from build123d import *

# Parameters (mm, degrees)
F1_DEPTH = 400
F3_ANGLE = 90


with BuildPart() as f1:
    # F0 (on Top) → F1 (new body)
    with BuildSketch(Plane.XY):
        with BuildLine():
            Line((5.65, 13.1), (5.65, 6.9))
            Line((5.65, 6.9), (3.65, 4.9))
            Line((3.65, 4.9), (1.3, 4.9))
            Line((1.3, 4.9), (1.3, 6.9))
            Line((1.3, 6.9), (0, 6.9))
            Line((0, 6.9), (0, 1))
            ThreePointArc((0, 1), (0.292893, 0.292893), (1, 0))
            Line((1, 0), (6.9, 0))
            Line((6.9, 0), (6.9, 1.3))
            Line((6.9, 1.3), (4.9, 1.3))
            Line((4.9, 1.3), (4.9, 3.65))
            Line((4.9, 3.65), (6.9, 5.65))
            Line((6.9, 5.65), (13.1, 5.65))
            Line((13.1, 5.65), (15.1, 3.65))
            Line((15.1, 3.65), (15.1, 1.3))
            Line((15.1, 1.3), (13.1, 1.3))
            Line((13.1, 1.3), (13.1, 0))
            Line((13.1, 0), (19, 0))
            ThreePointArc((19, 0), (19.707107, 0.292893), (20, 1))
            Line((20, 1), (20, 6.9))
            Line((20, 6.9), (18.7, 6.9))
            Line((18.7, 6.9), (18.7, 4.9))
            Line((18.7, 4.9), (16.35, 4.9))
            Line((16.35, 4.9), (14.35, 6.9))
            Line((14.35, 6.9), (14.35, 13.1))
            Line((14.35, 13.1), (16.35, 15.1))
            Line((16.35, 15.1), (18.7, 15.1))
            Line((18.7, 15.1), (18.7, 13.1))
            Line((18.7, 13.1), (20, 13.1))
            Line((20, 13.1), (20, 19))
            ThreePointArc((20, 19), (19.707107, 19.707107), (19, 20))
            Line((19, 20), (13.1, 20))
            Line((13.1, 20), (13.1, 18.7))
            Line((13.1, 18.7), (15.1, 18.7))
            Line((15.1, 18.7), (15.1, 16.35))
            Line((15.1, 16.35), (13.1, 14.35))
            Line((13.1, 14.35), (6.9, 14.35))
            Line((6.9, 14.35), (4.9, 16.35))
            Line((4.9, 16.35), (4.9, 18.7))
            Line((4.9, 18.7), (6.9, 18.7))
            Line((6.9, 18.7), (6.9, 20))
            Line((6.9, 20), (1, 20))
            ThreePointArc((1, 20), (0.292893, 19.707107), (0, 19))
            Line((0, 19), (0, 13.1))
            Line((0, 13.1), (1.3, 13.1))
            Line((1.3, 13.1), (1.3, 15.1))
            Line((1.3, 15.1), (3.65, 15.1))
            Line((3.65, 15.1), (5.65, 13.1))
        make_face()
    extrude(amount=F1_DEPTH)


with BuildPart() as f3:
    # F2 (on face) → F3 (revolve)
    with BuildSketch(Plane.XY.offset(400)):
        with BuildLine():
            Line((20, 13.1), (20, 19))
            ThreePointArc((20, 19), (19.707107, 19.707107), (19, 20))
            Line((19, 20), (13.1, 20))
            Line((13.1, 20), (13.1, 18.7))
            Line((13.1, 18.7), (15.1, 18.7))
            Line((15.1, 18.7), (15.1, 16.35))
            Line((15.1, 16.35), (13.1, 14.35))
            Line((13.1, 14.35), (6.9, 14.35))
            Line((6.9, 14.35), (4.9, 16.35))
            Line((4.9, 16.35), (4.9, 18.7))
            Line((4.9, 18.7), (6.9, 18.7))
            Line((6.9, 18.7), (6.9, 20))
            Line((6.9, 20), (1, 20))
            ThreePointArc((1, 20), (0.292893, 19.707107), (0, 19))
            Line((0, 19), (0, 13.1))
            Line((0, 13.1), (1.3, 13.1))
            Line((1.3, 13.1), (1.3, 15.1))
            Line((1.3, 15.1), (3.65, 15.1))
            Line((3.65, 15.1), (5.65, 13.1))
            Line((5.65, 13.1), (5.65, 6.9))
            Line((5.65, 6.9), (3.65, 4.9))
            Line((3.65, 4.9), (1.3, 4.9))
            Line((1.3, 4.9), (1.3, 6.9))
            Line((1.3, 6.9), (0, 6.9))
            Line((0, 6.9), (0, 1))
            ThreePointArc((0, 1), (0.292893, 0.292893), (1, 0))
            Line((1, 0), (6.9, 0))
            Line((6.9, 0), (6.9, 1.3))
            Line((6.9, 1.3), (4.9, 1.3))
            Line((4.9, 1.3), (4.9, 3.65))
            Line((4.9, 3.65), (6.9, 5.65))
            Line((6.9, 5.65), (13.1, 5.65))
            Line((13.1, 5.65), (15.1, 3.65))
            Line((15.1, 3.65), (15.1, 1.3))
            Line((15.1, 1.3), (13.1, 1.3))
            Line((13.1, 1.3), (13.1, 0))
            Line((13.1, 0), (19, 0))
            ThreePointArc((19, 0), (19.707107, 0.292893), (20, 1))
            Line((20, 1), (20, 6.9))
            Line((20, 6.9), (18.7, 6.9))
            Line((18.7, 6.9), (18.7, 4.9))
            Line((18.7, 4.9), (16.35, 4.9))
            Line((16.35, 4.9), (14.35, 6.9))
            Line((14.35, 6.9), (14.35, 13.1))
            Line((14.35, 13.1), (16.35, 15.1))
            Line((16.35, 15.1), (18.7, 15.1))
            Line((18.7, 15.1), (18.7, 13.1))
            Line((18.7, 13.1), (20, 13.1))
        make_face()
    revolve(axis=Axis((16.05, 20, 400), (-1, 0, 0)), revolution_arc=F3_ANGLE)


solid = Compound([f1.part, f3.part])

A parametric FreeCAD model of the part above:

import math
import FreeCAD as App
import Part
import Sketcher

V = App.Vector

doc = App.newDocument("Part")
body = doc.addObject("PartDesign::Body", "Body")

# Sketch on XY plane
sketch1 = body.newObject("Sketcher::SketchObject", "Sketch")
sketch1.AttachmentSupport = (doc.getObject("XY_Plane"), [""])
sketch1.MapMode = "FlatFace"
sketch1.addGeometry([
    Part.LineSegment(V(5.7, 13.1, 0), V(5.7, 6.9, 0)),  # 0
    Part.LineSegment(V(5.7, 6.9, 0), V(3.6, 4.9, 0)),  # 1
    Part.LineSegment(V(3.6, 4.9, 0), V(1.3, 4.9, 0)),  # 2
    Part.LineSegment(V(1.3, 4.9, 0), V(1.3, 6.9, 0)),  # 3
    Part.LineSegment(V(1.3, 6.9, 0), V(0, 6.9, 0)),  # 4
    Part.LineSegment(V(0, 6.9, 0), V(0, 1, 0)),  # 5
    Part.ArcOfCircle(Part.Circle(V(1, 1, 0), V(0, 0, 1), 1), math.radians(180), math.radians(270)),  # 6
    Part.LineSegment(V(1, 0, 0), V(6.9, 0, 0)),  # 7
    Part.LineSegment(V(6.9, 0, 0), V(6.9, 1.3, 0)),  # 8
    Part.LineSegment(V(6.9, 1.3, 0), V(4.9, 1.3, 0)),  # 9
    Part.LineSegment(V(4.9, 1.3, 0), V(4.9, 3.6, 0)),  # 10
    Part.LineSegment(V(4.9, 3.6, 0), V(6.9, 5.7, 0)),  # 11
    Part.LineSegment(V(6.9, 5.7, 0), V(13.1, 5.7, 0)),  # 12
    Part.LineSegment(V(13.1, 5.7, 0), V(15.1, 3.6, 0)),  # 13
    Part.LineSegment(V(15.1, 3.6, 0), V(15.1, 1.3, 0)),  # 14
    Part.LineSegment(V(15.1, 1.3, 0), V(13.1, 1.3, 0)),  # 15
    Part.LineSegment(V(13.1, 1.3, 0), V(13.1, 0, 0)),  # 16
    Part.LineSegment(V(13.1, 0, 0), V(19, 0, 0)),  # 17
    Part.ArcOfCircle(Part.Circle(V(19, 1, 0), V(0, 0, 1), 1), math.radians(-90), math.radians(0)),  # 18
    Part.LineSegment(V(20, 1, 0), V(20, 6.9, 0)),  # 19
    Part.LineSegment(V(20, 6.9, 0), V(18.7, 6.9, 0)),  # 20
    Part.LineSegment(V(18.7, 6.9, 0), V(18.7, 4.9, 0)),  # 21
    Part.LineSegment(V(18.7, 4.9, 0), V(16.4, 4.9, 0)),  # 22
    Part.LineSegment(V(16.4, 4.9, 0), V(14.3, 6.9, 0)),  # 23
    Part.LineSegment(V(14.3, 6.9, 0), V(14.3, 13.1, 0)),  # 24
    Part.LineSegment(V(14.3, 13.1, 0), V(16.4, 15.1, 0)),  # 25
    Part.LineSegment(V(16.4, 15.1, 0), V(18.7, 15.1, 0)),  # 26
    Part.LineSegment(V(18.7, 15.1, 0), V(18.7, 13.1, 0)),  # 27
    Part.LineSegment(V(18.7, 13.1, 0), V(20, 13.1, 0)),  # 28
    Part.LineSegment(V(20, 13.1, 0), V(20, 19, 0)),  # 29
    Part.ArcOfCircle(Part.Circle(V(19, 19, 0), V(0, 0, 1), 1), math.radians(0), math.radians(90)),  # 30
    Part.LineSegment(V(19, 20, 0), V(13.1, 20, 0)),  # 31
    Part.LineSegment(V(13.1, 20, 0), V(13.1, 18.7, 0)),  # 32
    Part.LineSegment(V(13.1, 18.7, 0), V(15.1, 18.7, 0)),  # 33
    Part.LineSegment(V(15.1, 18.7, 0), V(15.1, 16.4, 0)),  # 34
    Part.LineSegment(V(15.1, 16.4, 0), V(13.1, 14.3, 0)),  # 35
    Part.LineSegment(V(13.1, 14.3, 0), V(6.9, 14.3, 0)),  # 36
    Part.LineSegment(V(6.9, 14.3, 0), V(4.9, 16.4, 0)),  # 37
    Part.LineSegment(V(4.9, 16.4, 0), V(4.9, 18.7, 0)),  # 38
    Part.LineSegment(V(4.9, 18.7, 0), V(6.9, 18.7, 0)),  # 39
    Part.LineSegment(V(6.9, 18.7, 0), V(6.9, 20, 0)),  # 40
    Part.LineSegment(V(6.9, 20, 0), V(1, 20, 0)),  # 41
    Part.ArcOfCircle(Part.Circle(V(1, 19, 0), V(0, 0, 1), 1), math.radians(90), math.radians(180)),  # 42
    Part.LineSegment(V(0, 19, 0), V(0, 13.1, 0)),  # 43
    Part.LineSegment(V(0, 13.1, 0), V(1.3, 13.1, 0)),  # 44
    Part.LineSegment(V(1.3, 13.1, 0), V(1.3, 15.1, 0)),  # 45
    Part.LineSegment(V(1.3, 15.1, 0), V(3.6, 15.1, 0)),  # 46
    Part.LineSegment(V(3.6, 15.1, 0), V(5.7, 13.1, 0)),  # 47
], False)
sketch1.addConstraint([
    Sketcher.Constraint("Coincident", 0, 2, 1, 1),
    Sketcher.Constraint("Coincident", 1, 2, 2, 1),
    Sketcher.Constraint("Coincident", 2, 2, 3, 1),
    Sketcher.Constraint("Coincident", 3, 2, 4, 1),
    Sketcher.Constraint("Coincident", 4, 2, 5, 1),
    Sketcher.Constraint("Tangent", 5, 2, 6, 1),
    Sketcher.Constraint("Tangent", 6, 2, 7, 1),
    Sketcher.Constraint("Coincident", 7, 2, 8, 1),
    Sketcher.Constraint("Coincident", 8, 2, 9, 1),
    Sketcher.Constraint("Coincident", 9, 2, 10, 1),
    Sketcher.Constraint("Coincident", 10, 2, 11, 1),
    Sketcher.Constraint("Coincident", 11, 2, 12, 1),
    Sketcher.Constraint("Coincident", 12, 2, 13, 1),
    Sketcher.Constraint("Coincident", 13, 2, 14, 1),
    Sketcher.Constraint("Coincident", 14, 2, 15, 1),
    Sketcher.Constraint("Coincident", 15, 2, 16, 1),
    Sketcher.Constraint("Coincident", 16, 2, 17, 1),
    Sketcher.Constraint("Tangent", 17, 2, 18, 1),
    Sketcher.Constraint("Tangent", 18, 2, 19, 1),
    Sketcher.Constraint("Coincident", 19, 2, 20, 1),
    Sketcher.Constraint("Coincident", 20, 2, 21, 1),
    Sketcher.Constraint("Coincident", 21, 2, 22, 1),
    Sketcher.Constraint("Coincident", 22, 2, 23, 1),
    Sketcher.Constraint("Coincident", 23, 2, 24, 1),
    Sketcher.Constraint("Coincident", 24, 2, 25, 1),
    Sketcher.Constraint("Coincident", 25, 2, 26, 1),
    Sketcher.Constraint("Coincident", 26, 2, 27, 1),
    Sketcher.Constraint("Coincident", 27, 2, 28, 1),
    Sketcher.Constraint("Coincident", 28, 2, 29, 1),
    Sketcher.Constraint("Tangent", 29, 2, 30, 1),
    Sketcher.Constraint("Tangent", 30, 2, 31, 1),
    Sketcher.Constraint("Coincident", 31, 2, 32, 1),
    Sketcher.Constraint("Coincident", 32, 2, 33, 1),
    Sketcher.Constraint("Coincident", 33, 2, 34, 1),
    Sketcher.Constraint("Coincident", 34, 2, 35, 1),
    Sketcher.Constraint("Coincident", 35, 2, 36, 1),
    Sketcher.Constraint("Coincident", 36, 2, 37, 1),
    Sketcher.Constraint("Coincident", 37, 2, 38, 1),
    Sketcher.Constraint("Coincident", 38, 2, 39, 1),
    Sketcher.Constraint("Coincident", 39, 2, 40, 1),
    Sketcher.Constraint("Coincident", 40, 2, 41, 1),
    Sketcher.Constraint("Tangent", 41, 2, 42, 1),
    Sketcher.Constraint("Tangent", 42, 2, 43, 1),
    Sketcher.Constraint("Coincident", 43, 2, 44, 1),
    Sketcher.Constraint("Coincident", 44, 2, 45, 1),
    Sketcher.Constraint("Coincident", 45, 2, 46, 1),
    Sketcher.Constraint("Coincident", 46, 2, 47, 1),
    Sketcher.Constraint("Coincident", 47, 2, 0, 1),
    Sketcher.Constraint("Vertical", 0),
    Sketcher.Constraint("Horizontal", 2),
    Sketcher.Constraint("Vertical", 3),
    Sketcher.Constraint("Horizontal", 4),
    Sketcher.Constraint("Vertical", 5),
    Sketcher.Constraint("Horizontal", 7),
    Sketcher.Constraint("Vertical", 8),
    Sketcher.Constraint("Horizontal", 9),
    Sketcher.Constraint("Vertical", 10),
    Sketcher.Constraint("Horizontal", 12),
    Sketcher.Constraint("Vertical", 14),
    Sketcher.Constraint("Horizontal", 15),
    Sketcher.Constraint("Vertical", 16),
    Sketcher.Constraint("Horizontal", 17),
    Sketcher.Constraint("Vertical", 19),
    Sketcher.Constraint("Horizontal", 20),
    Sketcher.Constraint("Vertical", 21),
    Sketcher.Constraint("Horizontal", 22),
    Sketcher.Constraint("Vertical", 24),
    Sketcher.Constraint("Horizontal", 26),
    Sketcher.Constraint("Vertical", 27),
    Sketcher.Constraint("Horizontal", 28),
    Sketcher.Constraint("Vertical", 29),
    Sketcher.Constraint("Horizontal", 31),
    Sketcher.Constraint("Vertical", 32),
    Sketcher.Constraint("Horizontal", 33),
    Sketcher.Constraint("Vertical", 34),
    Sketcher.Constraint("Horizontal", 36),
    Sketcher.Constraint("Vertical", 38),
    Sketcher.Constraint("Horizontal", 39),
    Sketcher.Constraint("Vertical", 40),
    Sketcher.Constraint("Horizontal", 41),
    Sketcher.Constraint("Vertical", 43),
    Sketcher.Constraint("Horizontal", 44),
    Sketcher.Constraint("Vertical", 45),
    Sketcher.Constraint("Horizontal", 46),
    Sketcher.Constraint("Equal", 6, 18),
    Sketcher.Constraint("Equal", 18, 30),
    Sketcher.Constraint("Equal", 30, 42),
    Sketcher.Constraint("PointOnObject", 4, 2, -2),
    Sketcher.Constraint("PointOnObject", 6, 2, -1),
    Sketcher.Constraint("PointOnObject", 16, 2, -1),
    Sketcher.Constraint("PointOnObject", 42, 2, -2),
    Sketcher.Constraint("Parallel", 1, 11),
    Sketcher.Constraint("Perpendicular", 11, 13),
    Sketcher.Constraint("Parallel", 13, 23),
    Sketcher.Constraint("Perpendicular", 23, 25),
    Sketcher.Constraint("Parallel", 25, 35),
    Sketcher.Constraint("Perpendicular", 35, 37),
    Sketcher.Constraint("Parallel", 37, 47),
    Sketcher.Constraint("Horizontal", 30, 3, 42, 3),
    Sketcher.Constraint("Horizontal", 0, 2, 3, 2),
    Sketcher.Constraint("Horizontal", 10, 2, 13, 2),
    Sketcher.Constraint("Horizontal", 9, 2, 14, 2),
    Sketcher.Constraint("Horizontal", 4, 2, 19, 2),
    Sketcher.Constraint("Horizontal", 2, 2, 21, 2),
    Sketcher.Constraint("Horizontal", 20, 2, 23, 2),
    Sketcher.Constraint("Horizontal", 24, 2, 27, 2),
    Sketcher.Constraint("Horizontal", 34, 2, 37, 2),
    Sketcher.Constraint("Horizontal", 33, 2, 38, 2),
    Sketcher.Constraint("Horizontal", 28, 2, 43, 2),
    Sketcher.Constraint("Horizontal", 26, 2, 45, 2),
    Sketcher.Constraint("Horizontal", 44, 2, 47, 2),
    Sketcher.Constraint("Vertical", 18, 3, 30, 3),
    Sketcher.Constraint("Vertical", 8, 2, 11, 2),
    Sketcher.Constraint("Vertical", 12, 2, 15, 2),
    Sketcher.Constraint("Vertical", 22, 2, 25, 2),
    Sketcher.Constraint("Vertical", 21, 2, 26, 2),
    Sketcher.Constraint("Vertical", 16, 2, 31, 2),
    Sketcher.Constraint("Vertical", 14, 2, 33, 2),
    Sketcher.Constraint("Vertical", 32, 2, 35, 2),
    Sketcher.Constraint("Vertical", 11, 2, 36, 2),
    Sketcher.Constraint("Vertical", 10, 2, 37, 2),
    Sketcher.Constraint("Vertical", 36, 2, 39, 2),
    Sketcher.Constraint("Vertical", 3, 2, 44, 2),
    Sketcher.Constraint("Equal", 7, 17),
    Sketcher.Constraint("Equal", 4, 20),
    Sketcher.Constraint("Equal", 2, 22),
    Sketcher.Constraint("Equal", 36, 0),
    Sketcher.Constraint("Equal", 39, 3),
    Sketcher.Constraint("Equal", 41, 5),
    Sketcher.Constraint("Equal", 44, 8),
    Sketcher.Constraint("Equal", 46, 10),
    Sketcher.Constraint("Equal", 19, 29),
    Sketcher.Constraint("Equal", 16, 32),
    Sketcher.Constraint("Equal", 14, 34),
    Sketcher.Constraint("Radius", 6, 0.999999),
    Sketcher.Constraint("DistanceX", 9, 2, 9, 1, 2.0),
    Sketcher.Constraint("DistanceX", 4, 2, 4, 1, 1.3),
    Sketcher.Constraint("DistanceX", 7, 1, 7, 2, 5.9),
    Sketcher.Constraint("DistanceX", 12, 1, 12, 2, 6.2),
    Sketcher.Constraint("DistanceX", 2, 2, 2, 1, 2.35),
])
pad1 = body.newObject("PartDesign::Pad", "Pad")
pad1.Profile = sketch1
pad1.Length = 400
body2 = doc.addObject("PartDesign::Body", "Body001")

# Sketch on XY plane
sketch2 = body2.newObject("Sketcher::SketchObject", "Sketch001")
sketch2.AttachmentSupport = (doc.getObject("XY_Plane001"), [""])
sketch2.MapMode = "FlatFace"
sketch2.AttachmentOffset = App.Placement(V(0, 0, 400), App.Rotation())
sketch2.addGeometry([
    Part.LineSegment(V(20, 13.1, 0), V(20, 19, 0)),  # 0
    Part.ArcOfCircle(Part.Circle(V(19, 19, 0), V(0, 0, 1), 1), math.radians(0), math.radians(90)),  # 1
    Part.LineSegment(V(19, 20, 0), V(13.1, 20, 0)),  # 2
    Part.LineSegment(V(13.1, 20, 0), V(13.1, 18.7, 0)),  # 3
    Part.LineSegment(V(13.1, 18.7, 0), V(15.1, 18.7, 0)),  # 4
    Part.LineSegment(V(15.1, 18.7, 0), V(15.1, 16.4, 0)),  # 5
    Part.LineSegment(V(15.1, 16.4, 0), V(13.1, 14.3, 0)),  # 6
    Part.LineSegment(V(13.1, 14.3, 0), V(6.9, 14.3, 0)),  # 7
    Part.LineSegment(V(6.9, 14.3, 0), V(4.9, 16.4, 0)),  # 8
    Part.LineSegment(V(4.9, 16.4, 0), V(4.9, 18.7, 0)),  # 9
    Part.LineSegment(V(4.9, 18.7, 0), V(6.9, 18.7, 0)),  # 10
    Part.LineSegment(V(6.9, 18.7, 0), V(6.9, 20, 0)),  # 11
    Part.LineSegment(V(6.9, 20, 0), V(1, 20, 0)),  # 12
    Part.ArcOfCircle(Part.Circle(V(1, 19, 0), V(0, 0, 1), 1), math.radians(90), math.radians(180)),  # 13
    Part.LineSegment(V(0, 19, 0), V(0, 13.1, 0)),  # 14
    Part.LineSegment(V(0, 13.1, 0), V(1.3, 13.1, 0)),  # 15
    Part.LineSegment(V(1.3, 13.1, 0), V(1.3, 15.1, 0)),  # 16
    Part.LineSegment(V(1.3, 15.1, 0), V(3.6, 15.1, 0)),  # 17
    Part.LineSegment(V(3.6, 15.1, 0), V(5.7, 13.1, 0)),  # 18
    Part.LineSegment(V(5.7, 13.1, 0), V(5.7, 6.9, 0)),  # 19
    Part.LineSegment(V(5.7, 6.9, 0), V(3.6, 4.9, 0)),  # 20
    Part.LineSegment(V(3.6, 4.9, 0), V(1.3, 4.9, 0)),  # 21
    Part.LineSegment(V(1.3, 4.9, 0), V(1.3, 6.9, 0)),  # 22
    Part.LineSegment(V(1.3, 6.9, 0), V(0, 6.9, 0)),  # 23
    Part.LineSegment(V(0, 6.9, 0), V(0, 1, 0)),  # 24
    Part.ArcOfCircle(Part.Circle(V(1, 1, 0), V(0, 0, 1), 1), math.radians(180), math.radians(270)),  # 25
    Part.LineSegment(V(1, 0, 0), V(6.9, 0, 0)),  # 26
    Part.LineSegment(V(6.9, 0, 0), V(6.9, 1.3, 0)),  # 27
    Part.LineSegment(V(6.9, 1.3, 0), V(4.9, 1.3, 0)),  # 28
    Part.LineSegment(V(4.9, 1.3, 0), V(4.9, 3.6, 0)),  # 29
    Part.LineSegment(V(4.9, 3.6, 0), V(6.9, 5.7, 0)),  # 30
    Part.LineSegment(V(6.9, 5.7, 0), V(13.1, 5.7, 0)),  # 31
    Part.LineSegment(V(13.1, 5.7, 0), V(15.1, 3.6, 0)),  # 32
    Part.LineSegment(V(15.1, 3.6, 0), V(15.1, 1.3, 0)),  # 33
    Part.LineSegment(V(15.1, 1.3, 0), V(13.1, 1.3, 0)),  # 34
    Part.LineSegment(V(13.1, 1.3, 0), V(13.1, 0, 0)),  # 35
    Part.LineSegment(V(13.1, 0, 0), V(19, 0, 0)),  # 36
    Part.ArcOfCircle(Part.Circle(V(19, 1, 0), V(0, 0, 1), 1), math.radians(-90), math.radians(0)),  # 37
    Part.LineSegment(V(20, 1, 0), V(20, 6.9, 0)),  # 38
    Part.LineSegment(V(20, 6.9, 0), V(18.7, 6.9, 0)),  # 39
    Part.LineSegment(V(18.7, 6.9, 0), V(18.7, 4.9, 0)),  # 40
    Part.LineSegment(V(18.7, 4.9, 0), V(16.4, 4.9, 0)),  # 41
    Part.LineSegment(V(16.4, 4.9, 0), V(14.3, 6.9, 0)),  # 42
    Part.LineSegment(V(14.3, 6.9, 0), V(14.3, 13.1, 0)),  # 43
    Part.LineSegment(V(14.3, 13.1, 0), V(16.4, 15.1, 0)),  # 44
    Part.LineSegment(V(16.4, 15.1, 0), V(18.7, 15.1, 0)),  # 45
    Part.LineSegment(V(18.7, 15.1, 0), V(18.7, 13.1, 0)),  # 46
    Part.LineSegment(V(18.7, 13.1, 0), V(20, 13.1, 0)),  # 47
], False)
sketch2.addGeometry(Part.LineSegment(V(20, 20, 0), V(0, 20, 0)), True)  # axis
sketch2.addConstraint([
    Sketcher.Constraint("Tangent", 0, 2, 1, 1),
    Sketcher.Constraint("Tangent", 1, 2, 2, 1),
    Sketcher.Constraint("Coincident", 2, 2, 3, 1),
    Sketcher.Constraint("Coincident", 3, 2, 4, 1),
    Sketcher.Constraint("Coincident", 4, 2, 5, 1),
    Sketcher.Constraint("Coincident", 5, 2, 6, 1),
    Sketcher.Constraint("Coincident", 6, 2, 7, 1),
    Sketcher.Constraint("Coincident", 7, 2, 8, 1),
    Sketcher.Constraint("Coincident", 8, 2, 9, 1),
    Sketcher.Constraint("Coincident", 9, 2, 10, 1),
    Sketcher.Constraint("Coincident", 10, 2, 11, 1),
    Sketcher.Constraint("Coincident", 11, 2, 12, 1),
    Sketcher.Constraint("Tangent", 12, 2, 13, 1),
    Sketcher.Constraint("Tangent", 13, 2, 14, 1),
    Sketcher.Constraint("Coincident", 14, 2, 15, 1),
    Sketcher.Constraint("Coincident", 15, 2, 16, 1),
    Sketcher.Constraint("Coincident", 16, 2, 17, 1),
    Sketcher.Constraint("Coincident", 17, 2, 18, 1),
    Sketcher.Constraint("Coincident", 18, 2, 19, 1),
    Sketcher.Constraint("Coincident", 19, 2, 20, 1),
    Sketcher.Constraint("Coincident", 20, 2, 21, 1),
    Sketcher.Constraint("Coincident", 21, 2, 22, 1),
    Sketcher.Constraint("Coincident", 22, 2, 23, 1),
    Sketcher.Constraint("Coincident", 23, 2, 24, 1),
    Sketcher.Constraint("Tangent", 24, 2, 25, 1),
    Sketcher.Constraint("Tangent", 25, 2, 26, 1),
    Sketcher.Constraint("Coincident", 26, 2, 27, 1),
    Sketcher.Constraint("Coincident", 27, 2, 28, 1),
    Sketcher.Constraint("Coincident", 28, 2, 29, 1),
    Sketcher.Constraint("Coincident", 29, 2, 30, 1),
    Sketcher.Constraint("Coincident", 30, 2, 31, 1),
    Sketcher.Constraint("Coincident", 31, 2, 32, 1),
    Sketcher.Constraint("Coincident", 32, 2, 33, 1),
    Sketcher.Constraint("Coincident", 33, 2, 34, 1),
    Sketcher.Constraint("Coincident", 34, 2, 35, 1),
    Sketcher.Constraint("Coincident", 35, 2, 36, 1),
    Sketcher.Constraint("Tangent", 36, 2, 37, 1),
    Sketcher.Constraint("Tangent", 37, 2, 38, 1),
    Sketcher.Constraint("Coincident", 38, 2, 39, 1),
    Sketcher.Constraint("Coincident", 39, 2, 40, 1),
    Sketcher.Constraint("Coincident", 40, 2, 41, 1),
    Sketcher.Constraint("Coincident", 41, 2, 42, 1),
    Sketcher.Constraint("Coincident", 42, 2, 43, 1),
    Sketcher.Constraint("Coincident", 43, 2, 44, 1),
    Sketcher.Constraint("Coincident", 44, 2, 45, 1),
    Sketcher.Constraint("Coincident", 45, 2, 46, 1),
    Sketcher.Constraint("Coincident", 46, 2, 47, 1),
    Sketcher.Constraint("Coincident", 47, 2, 0, 1),
    Sketcher.Constraint("Vertical", 0),
    Sketcher.Constraint("Horizontal", 2),
    Sketcher.Constraint("Vertical", 3),
    Sketcher.Constraint("Horizontal", 4),
    Sketcher.Constraint("Vertical", 5),
    Sketcher.Constraint("Horizontal", 7),
    Sketcher.Constraint("Vertical", 9),
    Sketcher.Constraint("Horizontal", 10),
    Sketcher.Constraint("Vertical", 11),
    Sketcher.Constraint("Horizontal", 12),
    Sketcher.Constraint("Vertical", 14),
    Sketcher.Constraint("Horizontal", 15),
    Sketcher.Constraint("Vertical", 16),
    Sketcher.Constraint("Horizontal", 17),
    Sketcher.Constraint("Vertical", 19),
    Sketcher.Constraint("Horizontal", 21),
    Sketcher.Constraint("Vertical", 22),
    Sketcher.Constraint("Horizontal", 23),
    Sketcher.Constraint("Vertical", 24),
    Sketcher.Constraint("Horizontal", 26),
    Sketcher.Constraint("Vertical", 27),
    Sketcher.Constraint("Horizontal", 28),
    Sketcher.Constraint("Vertical", 29),
    Sketcher.Constraint("Horizontal", 31),
    Sketcher.Constraint("Vertical", 33),
    Sketcher.Constraint("Horizontal", 34),
    Sketcher.Constraint("Vertical", 35),
    Sketcher.Constraint("Horizontal", 36),
    Sketcher.Constraint("Vertical", 38),
    Sketcher.Constraint("Horizontal", 39),
    Sketcher.Constraint("Vertical", 40),
    Sketcher.Constraint("Horizontal", 41),
    Sketcher.Constraint("Vertical", 43),
    Sketcher.Constraint("Horizontal", 45),
    Sketcher.Constraint("Vertical", 46),
    Sketcher.Constraint("Horizontal", 47),
    Sketcher.Constraint("Horizontal", 48),
    Sketcher.Constraint("Equal", 1, 13),
    Sketcher.Constraint("Equal", 13, 25),
    Sketcher.Constraint("Equal", 25, 37),
    Sketcher.Constraint("PointOnObject", 13, 2, -2),
    Sketcher.Constraint("PointOnObject", 23, 2, -2),
    Sketcher.Constraint("PointOnObject", 25, 2, -1),
    Sketcher.Constraint("PointOnObject", 35, 2, -1),
    Sketcher.Constraint("PointOnObject", 48, 2, -2),
    Sketcher.Constraint("Perpendicular", 6, 8),
    Sketcher.Constraint("Parallel", 8, 18),
    Sketcher.Constraint("Perpendicular", 18, 20),
    Sketcher.Constraint("Parallel", 20, 30),
    Sketcher.Constraint("Perpendicular", 30, 32),
    Sketcher.Constraint("Parallel", 32, 42),
    Sketcher.Constraint("Perpendicular", 42, 44),
    Sketcher.Constraint("Horizontal", 1, 3, 13, 3),
    Sketcher.Constraint("Horizontal", 5, 2, 8, 2),
    Sketcher.Constraint("Horizontal", 4, 2, 9, 2),
    Sketcher.Constraint("Horizontal", 15, 2, 18, 2),
    Sketcher.Constraint("Horizontal", 19, 2, 22, 2),
    Sketcher.Constraint("Horizontal", 29, 2, 32, 2),
    Sketcher.Constraint("Horizontal", 28, 2, 33, 2),
    Sketcher.Constraint("Horizontal", 23, 2, 38, 2),
    Sketcher.Constraint("Horizontal", 21, 2, 40, 2),
    Sketcher.Constraint("Horizontal", 39, 2, 42, 2),
    Sketcher.Constraint("Horizontal", 18, 2, 43, 2),
    Sketcher.Constraint("Horizontal", 17, 2, 44, 2),
    Sketcher.Constraint("Horizontal", 43, 2, 46, 2),
    Sketcher.Constraint("Horizontal", 12, 2, 48, 1),
    Sketcher.Constraint("Vertical", 1, 3, 37, 3),
    Sketcher.Constraint("Vertical", 3, 2, 6, 2),
    Sketcher.Constraint("Vertical", 7, 2, 10, 2),
    Sketcher.Constraint("Vertical", 17, 2, 20, 2),
    Sketcher.Constraint("Vertical", 16, 2, 21, 2),
    Sketcher.Constraint("Vertical", 11, 2, 26, 2),
    Sketcher.Constraint("Vertical", 9, 2, 28, 2),
    Sketcher.Constraint("Vertical", 27, 2, 30, 2),
    Sketcher.Constraint("Vertical", 6, 2, 31, 2),
    Sketcher.Constraint("Vertical", 5, 2, 32, 2),
    Sketcher.Constraint("Vertical", 31, 2, 34, 2),
    Sketcher.Constraint("Vertical", 40, 2, 45, 2),
    Sketcher.Constraint("Vertical", 47, 2, 48, 1),
    Sketcher.Constraint("Equal", 2, 12),
    Sketcher.Constraint("Equal", 23, 39),
    Sketcher.Constraint("Equal", 21, 41),
    Sketcher.Constraint("Equal", 36, 0),
    Sketcher.Constraint("Equal", 47, 3),
    Sketcher.Constraint("Equal", 45, 5),
    Sketcher.Constraint("Equal", 34, 16),
    Sketcher.Constraint("Equal", 31, 19),
    Sketcher.Constraint("Equal", 14, 24),
    Sketcher.Constraint("Equal", 11, 27),
    Sketcher.Constraint("Equal", 9, 29),
    Sketcher.Constraint("Radius", 1, 0.999999),
    Sketcher.Constraint("DistanceX", 4, 1, 4, 2, 2.0),
    Sketcher.Constraint("DistanceX", 48, 2, 48, 1, 20.0),
    Sketcher.Constraint("DistanceX", 2, 2, 2, 1, 5.9),
    Sketcher.Constraint("DistanceX", 15, 1, 15, 2, 1.3),
    Sketcher.Constraint("DistanceX", 17, 1, 17, 2, 2.35),
])
revolution = body2.newObject("PartDesign::Revolution", "Revolution")
revolution.Profile = sketch2
revolution.ReferenceAxis = (sketch2, ["Axis0"])
revolution.Angle = 90

doc.recompute()
